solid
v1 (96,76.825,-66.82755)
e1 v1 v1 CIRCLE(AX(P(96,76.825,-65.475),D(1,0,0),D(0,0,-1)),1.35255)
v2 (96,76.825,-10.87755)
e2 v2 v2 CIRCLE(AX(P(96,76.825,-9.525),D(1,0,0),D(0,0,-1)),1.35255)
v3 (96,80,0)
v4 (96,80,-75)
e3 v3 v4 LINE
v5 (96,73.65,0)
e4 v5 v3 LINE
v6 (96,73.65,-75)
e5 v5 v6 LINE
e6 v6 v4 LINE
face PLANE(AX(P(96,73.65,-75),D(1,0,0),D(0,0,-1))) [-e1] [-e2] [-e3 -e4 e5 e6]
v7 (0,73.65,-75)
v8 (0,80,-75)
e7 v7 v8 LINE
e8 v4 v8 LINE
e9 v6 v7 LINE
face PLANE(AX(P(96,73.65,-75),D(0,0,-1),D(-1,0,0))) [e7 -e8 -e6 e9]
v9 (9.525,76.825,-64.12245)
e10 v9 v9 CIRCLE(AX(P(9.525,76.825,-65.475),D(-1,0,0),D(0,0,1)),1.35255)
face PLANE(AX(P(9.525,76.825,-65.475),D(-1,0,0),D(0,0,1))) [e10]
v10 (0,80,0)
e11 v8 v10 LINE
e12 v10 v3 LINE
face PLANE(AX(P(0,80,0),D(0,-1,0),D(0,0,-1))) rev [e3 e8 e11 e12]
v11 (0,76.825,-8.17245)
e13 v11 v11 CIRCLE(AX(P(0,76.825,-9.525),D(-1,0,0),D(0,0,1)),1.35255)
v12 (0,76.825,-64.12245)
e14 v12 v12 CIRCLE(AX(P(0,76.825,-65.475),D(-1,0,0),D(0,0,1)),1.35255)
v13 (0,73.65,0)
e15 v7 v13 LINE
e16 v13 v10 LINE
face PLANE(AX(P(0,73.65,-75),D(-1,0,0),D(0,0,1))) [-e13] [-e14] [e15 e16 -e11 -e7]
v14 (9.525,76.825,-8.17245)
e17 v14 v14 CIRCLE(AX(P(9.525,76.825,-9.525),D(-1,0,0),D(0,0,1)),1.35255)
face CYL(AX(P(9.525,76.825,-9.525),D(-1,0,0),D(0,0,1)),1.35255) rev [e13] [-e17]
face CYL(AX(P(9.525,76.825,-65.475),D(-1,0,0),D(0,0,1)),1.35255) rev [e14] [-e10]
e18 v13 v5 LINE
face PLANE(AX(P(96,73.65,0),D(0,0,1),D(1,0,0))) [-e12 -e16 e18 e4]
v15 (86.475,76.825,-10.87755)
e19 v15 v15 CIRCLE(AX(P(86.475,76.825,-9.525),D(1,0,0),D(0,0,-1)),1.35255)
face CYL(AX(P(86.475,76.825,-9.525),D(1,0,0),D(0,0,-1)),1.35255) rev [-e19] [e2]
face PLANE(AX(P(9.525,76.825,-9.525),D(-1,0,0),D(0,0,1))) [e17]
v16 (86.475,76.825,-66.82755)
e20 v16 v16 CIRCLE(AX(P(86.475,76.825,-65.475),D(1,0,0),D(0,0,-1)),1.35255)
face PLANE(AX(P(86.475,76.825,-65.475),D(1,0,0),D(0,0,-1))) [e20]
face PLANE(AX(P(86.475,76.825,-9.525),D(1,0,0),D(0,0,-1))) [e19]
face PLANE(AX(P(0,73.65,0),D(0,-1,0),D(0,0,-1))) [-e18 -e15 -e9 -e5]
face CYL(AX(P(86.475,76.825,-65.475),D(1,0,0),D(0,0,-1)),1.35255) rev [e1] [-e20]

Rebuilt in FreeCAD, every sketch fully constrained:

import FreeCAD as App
import Part
import Sketcher
Q = App.Units.Quantity


def add_polygon(sketch, points):
    """Adds a closed chain of lines whose ends are joined by coincident constraints."""
    first, n = sketch.GeometryCount, len(points)
    for a, b in zip(points, points[1:] + points[:1]):
        sketch.addGeometry(Part.LineSegment(App.Vector(*a, 0), App.Vector(*b, 0)), False)
    for i in range(n):
        sketch.addConstraint(Sketcher.Constraint("Coincident", first + i, 2, first + (i + 1) % n, 1))

doc = App.newDocument("Part")
body = doc.addObject("PartDesign::Body", "Body")

sketch1 = body.newObject("Sketcher::SketchObject", "Sketch")
sketch1.AttachmentSupport = (doc.getObject("XZ_Plane"), [""])
sketch1.MapMode = "FlatFace"
sketch1.AttachmentOffset = App.Placement(App.Vector(0, 0, -80), App.Rotation())
add_polygon(sketch1, [(0, -75), (0, 0), (96, 0), (96, -75)])
sketch1.addConstraint([
    Sketcher.Constraint("Vertical", 0),
    Sketcher.Constraint("Horizontal", 1),
    Sketcher.Constraint("Vertical", 2),
    Sketcher.Constraint("Horizontal", 3),
    Sketcher.Constraint("Coincident", 0, 2, -1, 1),
    Sketcher.Constraint("DistanceX", 1, 1, 1, 2, Q("96 mm")),
    Sketcher.Constraint("DistanceY", 0, 1, 0, 2, Q("75 mm")),
])
pad1 = body.newObject("PartDesign::Pad", "Pad")
pad1.Profile = sketch1
pad1.Length = 6.35

sketch2 = body.newObject("Sketcher::SketchObject", "Sketch001")
sketch2.AttachmentSupport = (doc.getObject("YZ_Plane"), [""])
sketch2.MapMode = "FlatFace"
sketch2.AttachmentOffset = App.Placement(App.Vector(0, 0, 96), App.Rotation())
sketch2.addGeometry([
    Part.Circle(App.Vector(76.8, -65.5, 0), App.Vector(0, 0, 1), 1.4),
    Part.Circle(App.Vector(76.8, -9.5, 0), App.Vector(0, 0, 1), 1.4),
], False)
sketch2.addConstraint([
    Sketcher.Constraint("Equal", 0, 1),
    Sketcher.Constraint("Vertical", 0, 3, 1, 3),
    Sketcher.Constraint("Diameter", 0, Q("2.7051 mm")),
    Sketcher.Constraint("DistanceY", 0, 3, 1, 3, Q("55.95 mm")),
    Sketcher.Constraint("DistanceX", -1, 1, 0, 3, Q("76.825 mm")),
    Sketcher.Constraint("DistanceY", 0, 3, -1, 1, Q("65.475 mm")),
])
pocket1 = body.newObject("PartDesign::Pocket", "Pocket")
pocket1.Profile = sketch2
pocket1.Length = 9.525

sketch3 = body.newObject("Sketcher::SketchObject", "Sketch002")
sketch3.AttachmentSupport = (doc.getObject("YZ_Plane"), [""])
sketch3.MapMode = "FlatFace"
sketch3.addGeometry([
    Part.Circle(App.Vector(76.8, -65.5, 0), App.Vector(0, 0, 1), 1.4),
    Part.Circle(App.Vector(76.8, -9.5, 0), App.Vector(0, 0, 1), 1.4),
], False)
sketch3.addConstraint([
    Sketcher.Constraint("Equal", 0, 1),
    Sketcher.Constraint("Vertical", 0, 3, 1, 3),
    Sketcher.Constraint("Diameter", 0, Q("2.7051 mm")),
    Sketcher.Constraint("DistanceY", 0, 3, 1, 3, Q("55.95 mm")),
    Sketcher.Constraint("DistanceX", -1, 1, 0, 3, Q("76.825 mm")),
    Sketcher.Constraint("DistanceY", 0, 3, -1, 1, Q("65.475 mm")),
])
pocket2 = body.newObject("PartDesign::Pocket", "Pocket001")
pocket2.Profile = sketch3
pocket2.Length = 9.525
pocket2.Reversed = True

doc.recompute()
